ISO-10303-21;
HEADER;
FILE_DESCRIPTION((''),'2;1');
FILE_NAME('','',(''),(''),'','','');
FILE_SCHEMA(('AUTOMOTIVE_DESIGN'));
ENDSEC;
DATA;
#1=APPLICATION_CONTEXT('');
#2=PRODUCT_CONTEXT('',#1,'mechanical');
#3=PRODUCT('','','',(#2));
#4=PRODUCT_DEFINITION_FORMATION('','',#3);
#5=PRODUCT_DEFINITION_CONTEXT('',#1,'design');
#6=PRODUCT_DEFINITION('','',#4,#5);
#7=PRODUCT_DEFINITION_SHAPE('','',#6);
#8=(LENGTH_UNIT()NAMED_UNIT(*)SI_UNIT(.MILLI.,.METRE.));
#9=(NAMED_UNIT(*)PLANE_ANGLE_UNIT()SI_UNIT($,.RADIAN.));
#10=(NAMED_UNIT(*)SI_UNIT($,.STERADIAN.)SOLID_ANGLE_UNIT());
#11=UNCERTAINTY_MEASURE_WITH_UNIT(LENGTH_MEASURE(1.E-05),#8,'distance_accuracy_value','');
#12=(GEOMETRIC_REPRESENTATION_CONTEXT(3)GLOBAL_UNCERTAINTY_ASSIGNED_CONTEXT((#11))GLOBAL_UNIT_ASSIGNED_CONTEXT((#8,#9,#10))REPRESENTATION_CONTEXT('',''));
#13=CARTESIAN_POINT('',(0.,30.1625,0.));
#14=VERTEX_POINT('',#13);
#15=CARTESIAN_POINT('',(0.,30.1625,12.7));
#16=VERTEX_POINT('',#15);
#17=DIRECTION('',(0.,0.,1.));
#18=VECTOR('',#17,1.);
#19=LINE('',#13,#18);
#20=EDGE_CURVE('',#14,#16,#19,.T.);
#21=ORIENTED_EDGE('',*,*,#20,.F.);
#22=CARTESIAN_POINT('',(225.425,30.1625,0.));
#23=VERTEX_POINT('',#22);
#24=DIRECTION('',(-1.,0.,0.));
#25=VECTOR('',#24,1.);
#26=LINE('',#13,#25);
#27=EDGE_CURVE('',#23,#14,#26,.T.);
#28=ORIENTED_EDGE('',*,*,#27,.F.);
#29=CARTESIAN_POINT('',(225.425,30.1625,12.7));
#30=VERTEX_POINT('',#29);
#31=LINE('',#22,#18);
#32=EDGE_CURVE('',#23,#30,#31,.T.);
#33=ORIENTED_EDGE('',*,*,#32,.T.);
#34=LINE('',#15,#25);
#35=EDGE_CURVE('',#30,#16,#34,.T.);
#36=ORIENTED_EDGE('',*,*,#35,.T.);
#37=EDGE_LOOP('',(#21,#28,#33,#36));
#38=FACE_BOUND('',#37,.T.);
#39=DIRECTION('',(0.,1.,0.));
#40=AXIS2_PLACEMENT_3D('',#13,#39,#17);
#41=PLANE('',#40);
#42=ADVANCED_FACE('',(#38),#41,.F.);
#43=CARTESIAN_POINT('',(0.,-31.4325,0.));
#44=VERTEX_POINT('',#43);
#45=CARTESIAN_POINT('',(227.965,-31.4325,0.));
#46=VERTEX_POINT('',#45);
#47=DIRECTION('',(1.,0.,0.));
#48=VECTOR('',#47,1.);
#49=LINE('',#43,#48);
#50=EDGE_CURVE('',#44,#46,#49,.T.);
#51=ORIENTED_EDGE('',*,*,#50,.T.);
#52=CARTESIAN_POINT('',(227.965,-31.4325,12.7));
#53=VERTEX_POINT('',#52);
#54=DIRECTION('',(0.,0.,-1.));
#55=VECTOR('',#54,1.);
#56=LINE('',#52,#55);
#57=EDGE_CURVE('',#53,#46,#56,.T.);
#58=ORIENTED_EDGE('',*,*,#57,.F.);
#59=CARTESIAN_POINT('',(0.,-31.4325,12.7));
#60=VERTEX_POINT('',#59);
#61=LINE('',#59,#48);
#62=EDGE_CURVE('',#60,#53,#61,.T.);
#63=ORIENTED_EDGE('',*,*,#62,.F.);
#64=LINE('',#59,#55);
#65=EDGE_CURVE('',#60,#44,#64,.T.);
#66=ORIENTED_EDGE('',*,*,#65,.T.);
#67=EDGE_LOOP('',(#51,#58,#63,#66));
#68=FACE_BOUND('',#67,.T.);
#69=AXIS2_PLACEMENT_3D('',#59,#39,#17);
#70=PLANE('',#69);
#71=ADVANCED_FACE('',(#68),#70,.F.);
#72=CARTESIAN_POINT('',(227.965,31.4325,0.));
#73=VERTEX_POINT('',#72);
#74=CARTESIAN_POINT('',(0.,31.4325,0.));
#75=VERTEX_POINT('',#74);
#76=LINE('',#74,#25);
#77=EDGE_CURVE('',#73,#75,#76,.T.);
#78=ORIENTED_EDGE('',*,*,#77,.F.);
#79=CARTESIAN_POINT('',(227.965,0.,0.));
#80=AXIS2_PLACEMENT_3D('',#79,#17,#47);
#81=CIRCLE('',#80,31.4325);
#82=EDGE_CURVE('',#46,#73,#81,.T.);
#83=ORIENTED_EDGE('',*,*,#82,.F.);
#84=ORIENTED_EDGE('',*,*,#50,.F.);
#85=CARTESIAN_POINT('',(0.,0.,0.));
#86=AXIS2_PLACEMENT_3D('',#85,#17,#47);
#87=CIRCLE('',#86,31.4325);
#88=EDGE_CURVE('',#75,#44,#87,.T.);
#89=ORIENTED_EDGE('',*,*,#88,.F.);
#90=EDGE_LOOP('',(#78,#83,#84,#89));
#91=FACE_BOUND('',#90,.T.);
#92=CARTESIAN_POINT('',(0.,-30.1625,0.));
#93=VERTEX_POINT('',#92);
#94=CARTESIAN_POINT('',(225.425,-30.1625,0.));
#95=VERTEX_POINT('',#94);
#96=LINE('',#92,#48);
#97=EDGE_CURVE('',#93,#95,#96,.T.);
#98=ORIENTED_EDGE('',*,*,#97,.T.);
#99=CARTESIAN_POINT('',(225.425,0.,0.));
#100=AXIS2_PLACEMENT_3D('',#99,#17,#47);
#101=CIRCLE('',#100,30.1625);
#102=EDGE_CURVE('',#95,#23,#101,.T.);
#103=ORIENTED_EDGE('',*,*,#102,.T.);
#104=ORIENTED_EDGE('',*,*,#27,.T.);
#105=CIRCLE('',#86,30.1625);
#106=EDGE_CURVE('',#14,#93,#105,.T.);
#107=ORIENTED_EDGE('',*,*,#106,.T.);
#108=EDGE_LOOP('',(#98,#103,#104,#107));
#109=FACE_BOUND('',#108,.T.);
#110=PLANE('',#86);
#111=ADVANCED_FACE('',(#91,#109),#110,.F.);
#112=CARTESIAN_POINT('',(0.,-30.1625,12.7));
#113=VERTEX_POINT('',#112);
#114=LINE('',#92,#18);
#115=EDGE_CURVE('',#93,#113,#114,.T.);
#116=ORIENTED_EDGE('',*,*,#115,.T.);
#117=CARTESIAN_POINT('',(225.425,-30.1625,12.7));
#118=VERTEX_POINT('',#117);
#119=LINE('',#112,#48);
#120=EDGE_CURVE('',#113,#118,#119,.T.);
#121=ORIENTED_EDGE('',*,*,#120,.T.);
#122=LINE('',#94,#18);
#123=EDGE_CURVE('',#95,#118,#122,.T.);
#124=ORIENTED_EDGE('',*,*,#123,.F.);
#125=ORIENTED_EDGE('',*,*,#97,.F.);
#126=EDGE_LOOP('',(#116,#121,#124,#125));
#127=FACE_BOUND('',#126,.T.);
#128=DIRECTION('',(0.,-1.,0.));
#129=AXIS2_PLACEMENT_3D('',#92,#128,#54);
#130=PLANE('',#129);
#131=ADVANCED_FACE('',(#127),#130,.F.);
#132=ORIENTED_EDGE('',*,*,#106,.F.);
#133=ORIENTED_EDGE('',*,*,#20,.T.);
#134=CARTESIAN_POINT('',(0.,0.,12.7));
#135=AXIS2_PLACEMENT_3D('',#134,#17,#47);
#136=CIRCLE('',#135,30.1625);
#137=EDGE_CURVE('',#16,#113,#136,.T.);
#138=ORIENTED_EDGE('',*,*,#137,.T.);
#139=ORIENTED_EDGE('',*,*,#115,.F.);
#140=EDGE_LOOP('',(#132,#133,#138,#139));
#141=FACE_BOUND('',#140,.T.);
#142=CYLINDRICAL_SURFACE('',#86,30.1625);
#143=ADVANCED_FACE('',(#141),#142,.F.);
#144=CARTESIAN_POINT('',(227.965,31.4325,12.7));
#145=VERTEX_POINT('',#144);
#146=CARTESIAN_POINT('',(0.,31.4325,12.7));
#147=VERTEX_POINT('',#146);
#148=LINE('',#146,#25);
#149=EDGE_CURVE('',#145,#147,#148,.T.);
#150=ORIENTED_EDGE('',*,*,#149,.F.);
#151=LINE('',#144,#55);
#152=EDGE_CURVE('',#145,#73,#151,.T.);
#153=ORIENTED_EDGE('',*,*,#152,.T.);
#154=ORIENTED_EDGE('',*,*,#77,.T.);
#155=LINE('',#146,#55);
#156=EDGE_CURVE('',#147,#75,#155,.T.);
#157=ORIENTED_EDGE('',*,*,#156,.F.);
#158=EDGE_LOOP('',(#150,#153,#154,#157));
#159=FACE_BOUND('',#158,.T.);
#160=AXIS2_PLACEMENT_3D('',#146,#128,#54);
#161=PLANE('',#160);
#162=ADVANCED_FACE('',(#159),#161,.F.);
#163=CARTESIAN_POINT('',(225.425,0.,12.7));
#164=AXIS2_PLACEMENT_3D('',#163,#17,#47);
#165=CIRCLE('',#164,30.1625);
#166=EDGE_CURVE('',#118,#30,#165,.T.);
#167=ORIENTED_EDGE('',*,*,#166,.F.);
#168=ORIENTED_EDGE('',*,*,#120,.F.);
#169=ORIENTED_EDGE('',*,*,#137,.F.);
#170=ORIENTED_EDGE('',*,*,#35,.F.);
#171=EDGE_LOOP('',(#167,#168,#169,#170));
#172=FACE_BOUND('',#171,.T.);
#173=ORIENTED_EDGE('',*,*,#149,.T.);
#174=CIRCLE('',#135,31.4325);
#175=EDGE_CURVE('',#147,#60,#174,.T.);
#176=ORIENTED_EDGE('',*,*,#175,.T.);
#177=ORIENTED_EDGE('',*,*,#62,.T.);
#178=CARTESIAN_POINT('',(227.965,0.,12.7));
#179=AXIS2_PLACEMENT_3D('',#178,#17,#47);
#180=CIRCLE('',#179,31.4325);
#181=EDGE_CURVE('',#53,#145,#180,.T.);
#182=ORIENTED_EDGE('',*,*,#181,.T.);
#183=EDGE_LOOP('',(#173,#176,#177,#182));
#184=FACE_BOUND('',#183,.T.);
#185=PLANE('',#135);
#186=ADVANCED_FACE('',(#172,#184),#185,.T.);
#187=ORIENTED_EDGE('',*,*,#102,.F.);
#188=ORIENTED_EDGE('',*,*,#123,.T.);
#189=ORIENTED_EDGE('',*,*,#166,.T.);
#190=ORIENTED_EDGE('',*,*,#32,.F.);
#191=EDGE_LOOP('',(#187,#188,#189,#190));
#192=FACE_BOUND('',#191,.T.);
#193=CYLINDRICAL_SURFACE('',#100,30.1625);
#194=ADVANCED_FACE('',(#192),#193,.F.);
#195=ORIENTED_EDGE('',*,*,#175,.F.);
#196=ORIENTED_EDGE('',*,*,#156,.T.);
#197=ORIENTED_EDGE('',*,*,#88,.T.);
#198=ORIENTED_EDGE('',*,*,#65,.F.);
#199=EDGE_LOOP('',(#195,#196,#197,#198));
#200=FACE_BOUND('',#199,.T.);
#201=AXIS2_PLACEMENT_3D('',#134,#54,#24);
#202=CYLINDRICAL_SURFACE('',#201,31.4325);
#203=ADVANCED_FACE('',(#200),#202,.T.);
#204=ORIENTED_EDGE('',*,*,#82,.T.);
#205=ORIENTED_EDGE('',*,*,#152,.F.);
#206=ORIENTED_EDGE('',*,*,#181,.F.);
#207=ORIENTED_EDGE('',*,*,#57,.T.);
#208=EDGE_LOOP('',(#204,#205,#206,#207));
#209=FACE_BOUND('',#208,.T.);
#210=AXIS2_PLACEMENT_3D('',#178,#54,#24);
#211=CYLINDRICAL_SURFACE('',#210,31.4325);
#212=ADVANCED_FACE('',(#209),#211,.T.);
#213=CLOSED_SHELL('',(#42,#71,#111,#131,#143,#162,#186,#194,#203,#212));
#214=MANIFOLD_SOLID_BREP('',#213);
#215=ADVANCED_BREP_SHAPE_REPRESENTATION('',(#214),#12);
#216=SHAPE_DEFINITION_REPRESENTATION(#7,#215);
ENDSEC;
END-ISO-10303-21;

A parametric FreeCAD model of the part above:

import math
import FreeCAD as App
import Part
import Sketcher
Q = App.Units.Quantity

doc = App.newDocument("Part")
body = doc.addObject("PartDesign::Body", "Body")

sketch1 = body.newObject("Sketcher::SketchObject", "Sketch")
sketch1.AttachmentSupport = (doc.getObject("XY_Plane"), [""])
sketch1.MapMode = "FlatFace"
sketch1.addGeometry([
    Part.LineSegment(App.Vector(228, 31, 0), App.Vector(0, 31, 0)),
    Part.ArcOfCircle(Part.Circle(App.Vector(0, 0, 0), App.Vector(0, 0, 1), 31), math.radians(90), math.radians(270)),
    Part.LineSegment(App.Vector(0, -31, 0), App.Vector(228, -31, 0)),
    Part.ArcOfCircle(Part.Circle(App.Vector(228, 0, 0), App.Vector(0, 0, 1), 31), math.radians(-90), math.radians(90)),
], False)
sketch1.addConstraint([
    Sketcher.Constraint("Tangent", 0, 2, 1, 1),
    Sketcher.Constraint("Tangent", 1, 2, 2, 1),
    Sketcher.Constraint("Tangent", 2, 2, 3, 1),
    Sketcher.Constraint("Tangent", 3, 2, 0, 1),
    Sketcher.Constraint("Horizontal", 0),
    Sketcher.Constraint("Horizontal", 2),
    Sketcher.Constraint("Coincident", 1, 3, -1, 1),
    Sketcher.Constraint("Radius", 1, Q("1.2375 in")),
    Sketcher.Constraint("DistanceX", 0, 2, 0, 1, Q("8.975 in")),
])
pad1 = body.newObject("PartDesign::Pad", "Pad")
pad1.Profile = sketch1
pad1.Length = Q("0.5 in")

sketch2 = body.newObject("Sketcher::SketchObject", "Sketch001")
sketch2.AttachmentSupport = (doc.getObject("XY_Plane"), [""])
sketch2.MapMode = "FlatFace"
sketch2.AttachmentOffset = App.Placement(App.Vector(0, 0, 0.5 * 25.4), App.Rotation())
sketch2.addGeometry([
    Part.LineSegment(App.Vector(225, 30, 0), App.Vector(0, 30, 0)),
    Part.ArcOfCircle(Part.Circle(App.Vector(0, 0, 0), App.Vector(0, 0, 1), 30), math.radians(90), math.radians(270)),
    Part.LineSegment(App.Vector(0, -30, 0), App.Vector(225, -30, 0)),
    Part.ArcOfCircle(Part.Circle(App.Vector(225, 0, 0), App.Vector(0, 0, 1), 30), math.radians(-90), math.radians(90)),
], False)
sketch2.addConstraint([
    Sketcher.Constraint("Tangent", 0, 2, 1, 1),
    Sketcher.Constraint("Tangent", 1, 2, 2, 1),
    Sketcher.Constraint("Tangent", 2, 2, 3, 1),
    Sketcher.Constraint("Tangent", 3, 2, 0, 1),
    Sketcher.Constraint("Horizontal", 0),
    Sketcher.Constraint("Horizontal", 2),
    Sketcher.Constraint("Coincident", 1, 3, -1, 1),
    Sketcher.Constraint("Radius", 1, Q("1.1875 in")),
    Sketcher.Constraint("DistanceX", 0, 2, 0, 1, Q("8.875 in")),
])
pocket1 = body.newObject("PartDesign::Pocket", "Pocket")
pocket1.Profile = sketch2
pocket1.Length = Q("0.5 in")

doc.recompute()
